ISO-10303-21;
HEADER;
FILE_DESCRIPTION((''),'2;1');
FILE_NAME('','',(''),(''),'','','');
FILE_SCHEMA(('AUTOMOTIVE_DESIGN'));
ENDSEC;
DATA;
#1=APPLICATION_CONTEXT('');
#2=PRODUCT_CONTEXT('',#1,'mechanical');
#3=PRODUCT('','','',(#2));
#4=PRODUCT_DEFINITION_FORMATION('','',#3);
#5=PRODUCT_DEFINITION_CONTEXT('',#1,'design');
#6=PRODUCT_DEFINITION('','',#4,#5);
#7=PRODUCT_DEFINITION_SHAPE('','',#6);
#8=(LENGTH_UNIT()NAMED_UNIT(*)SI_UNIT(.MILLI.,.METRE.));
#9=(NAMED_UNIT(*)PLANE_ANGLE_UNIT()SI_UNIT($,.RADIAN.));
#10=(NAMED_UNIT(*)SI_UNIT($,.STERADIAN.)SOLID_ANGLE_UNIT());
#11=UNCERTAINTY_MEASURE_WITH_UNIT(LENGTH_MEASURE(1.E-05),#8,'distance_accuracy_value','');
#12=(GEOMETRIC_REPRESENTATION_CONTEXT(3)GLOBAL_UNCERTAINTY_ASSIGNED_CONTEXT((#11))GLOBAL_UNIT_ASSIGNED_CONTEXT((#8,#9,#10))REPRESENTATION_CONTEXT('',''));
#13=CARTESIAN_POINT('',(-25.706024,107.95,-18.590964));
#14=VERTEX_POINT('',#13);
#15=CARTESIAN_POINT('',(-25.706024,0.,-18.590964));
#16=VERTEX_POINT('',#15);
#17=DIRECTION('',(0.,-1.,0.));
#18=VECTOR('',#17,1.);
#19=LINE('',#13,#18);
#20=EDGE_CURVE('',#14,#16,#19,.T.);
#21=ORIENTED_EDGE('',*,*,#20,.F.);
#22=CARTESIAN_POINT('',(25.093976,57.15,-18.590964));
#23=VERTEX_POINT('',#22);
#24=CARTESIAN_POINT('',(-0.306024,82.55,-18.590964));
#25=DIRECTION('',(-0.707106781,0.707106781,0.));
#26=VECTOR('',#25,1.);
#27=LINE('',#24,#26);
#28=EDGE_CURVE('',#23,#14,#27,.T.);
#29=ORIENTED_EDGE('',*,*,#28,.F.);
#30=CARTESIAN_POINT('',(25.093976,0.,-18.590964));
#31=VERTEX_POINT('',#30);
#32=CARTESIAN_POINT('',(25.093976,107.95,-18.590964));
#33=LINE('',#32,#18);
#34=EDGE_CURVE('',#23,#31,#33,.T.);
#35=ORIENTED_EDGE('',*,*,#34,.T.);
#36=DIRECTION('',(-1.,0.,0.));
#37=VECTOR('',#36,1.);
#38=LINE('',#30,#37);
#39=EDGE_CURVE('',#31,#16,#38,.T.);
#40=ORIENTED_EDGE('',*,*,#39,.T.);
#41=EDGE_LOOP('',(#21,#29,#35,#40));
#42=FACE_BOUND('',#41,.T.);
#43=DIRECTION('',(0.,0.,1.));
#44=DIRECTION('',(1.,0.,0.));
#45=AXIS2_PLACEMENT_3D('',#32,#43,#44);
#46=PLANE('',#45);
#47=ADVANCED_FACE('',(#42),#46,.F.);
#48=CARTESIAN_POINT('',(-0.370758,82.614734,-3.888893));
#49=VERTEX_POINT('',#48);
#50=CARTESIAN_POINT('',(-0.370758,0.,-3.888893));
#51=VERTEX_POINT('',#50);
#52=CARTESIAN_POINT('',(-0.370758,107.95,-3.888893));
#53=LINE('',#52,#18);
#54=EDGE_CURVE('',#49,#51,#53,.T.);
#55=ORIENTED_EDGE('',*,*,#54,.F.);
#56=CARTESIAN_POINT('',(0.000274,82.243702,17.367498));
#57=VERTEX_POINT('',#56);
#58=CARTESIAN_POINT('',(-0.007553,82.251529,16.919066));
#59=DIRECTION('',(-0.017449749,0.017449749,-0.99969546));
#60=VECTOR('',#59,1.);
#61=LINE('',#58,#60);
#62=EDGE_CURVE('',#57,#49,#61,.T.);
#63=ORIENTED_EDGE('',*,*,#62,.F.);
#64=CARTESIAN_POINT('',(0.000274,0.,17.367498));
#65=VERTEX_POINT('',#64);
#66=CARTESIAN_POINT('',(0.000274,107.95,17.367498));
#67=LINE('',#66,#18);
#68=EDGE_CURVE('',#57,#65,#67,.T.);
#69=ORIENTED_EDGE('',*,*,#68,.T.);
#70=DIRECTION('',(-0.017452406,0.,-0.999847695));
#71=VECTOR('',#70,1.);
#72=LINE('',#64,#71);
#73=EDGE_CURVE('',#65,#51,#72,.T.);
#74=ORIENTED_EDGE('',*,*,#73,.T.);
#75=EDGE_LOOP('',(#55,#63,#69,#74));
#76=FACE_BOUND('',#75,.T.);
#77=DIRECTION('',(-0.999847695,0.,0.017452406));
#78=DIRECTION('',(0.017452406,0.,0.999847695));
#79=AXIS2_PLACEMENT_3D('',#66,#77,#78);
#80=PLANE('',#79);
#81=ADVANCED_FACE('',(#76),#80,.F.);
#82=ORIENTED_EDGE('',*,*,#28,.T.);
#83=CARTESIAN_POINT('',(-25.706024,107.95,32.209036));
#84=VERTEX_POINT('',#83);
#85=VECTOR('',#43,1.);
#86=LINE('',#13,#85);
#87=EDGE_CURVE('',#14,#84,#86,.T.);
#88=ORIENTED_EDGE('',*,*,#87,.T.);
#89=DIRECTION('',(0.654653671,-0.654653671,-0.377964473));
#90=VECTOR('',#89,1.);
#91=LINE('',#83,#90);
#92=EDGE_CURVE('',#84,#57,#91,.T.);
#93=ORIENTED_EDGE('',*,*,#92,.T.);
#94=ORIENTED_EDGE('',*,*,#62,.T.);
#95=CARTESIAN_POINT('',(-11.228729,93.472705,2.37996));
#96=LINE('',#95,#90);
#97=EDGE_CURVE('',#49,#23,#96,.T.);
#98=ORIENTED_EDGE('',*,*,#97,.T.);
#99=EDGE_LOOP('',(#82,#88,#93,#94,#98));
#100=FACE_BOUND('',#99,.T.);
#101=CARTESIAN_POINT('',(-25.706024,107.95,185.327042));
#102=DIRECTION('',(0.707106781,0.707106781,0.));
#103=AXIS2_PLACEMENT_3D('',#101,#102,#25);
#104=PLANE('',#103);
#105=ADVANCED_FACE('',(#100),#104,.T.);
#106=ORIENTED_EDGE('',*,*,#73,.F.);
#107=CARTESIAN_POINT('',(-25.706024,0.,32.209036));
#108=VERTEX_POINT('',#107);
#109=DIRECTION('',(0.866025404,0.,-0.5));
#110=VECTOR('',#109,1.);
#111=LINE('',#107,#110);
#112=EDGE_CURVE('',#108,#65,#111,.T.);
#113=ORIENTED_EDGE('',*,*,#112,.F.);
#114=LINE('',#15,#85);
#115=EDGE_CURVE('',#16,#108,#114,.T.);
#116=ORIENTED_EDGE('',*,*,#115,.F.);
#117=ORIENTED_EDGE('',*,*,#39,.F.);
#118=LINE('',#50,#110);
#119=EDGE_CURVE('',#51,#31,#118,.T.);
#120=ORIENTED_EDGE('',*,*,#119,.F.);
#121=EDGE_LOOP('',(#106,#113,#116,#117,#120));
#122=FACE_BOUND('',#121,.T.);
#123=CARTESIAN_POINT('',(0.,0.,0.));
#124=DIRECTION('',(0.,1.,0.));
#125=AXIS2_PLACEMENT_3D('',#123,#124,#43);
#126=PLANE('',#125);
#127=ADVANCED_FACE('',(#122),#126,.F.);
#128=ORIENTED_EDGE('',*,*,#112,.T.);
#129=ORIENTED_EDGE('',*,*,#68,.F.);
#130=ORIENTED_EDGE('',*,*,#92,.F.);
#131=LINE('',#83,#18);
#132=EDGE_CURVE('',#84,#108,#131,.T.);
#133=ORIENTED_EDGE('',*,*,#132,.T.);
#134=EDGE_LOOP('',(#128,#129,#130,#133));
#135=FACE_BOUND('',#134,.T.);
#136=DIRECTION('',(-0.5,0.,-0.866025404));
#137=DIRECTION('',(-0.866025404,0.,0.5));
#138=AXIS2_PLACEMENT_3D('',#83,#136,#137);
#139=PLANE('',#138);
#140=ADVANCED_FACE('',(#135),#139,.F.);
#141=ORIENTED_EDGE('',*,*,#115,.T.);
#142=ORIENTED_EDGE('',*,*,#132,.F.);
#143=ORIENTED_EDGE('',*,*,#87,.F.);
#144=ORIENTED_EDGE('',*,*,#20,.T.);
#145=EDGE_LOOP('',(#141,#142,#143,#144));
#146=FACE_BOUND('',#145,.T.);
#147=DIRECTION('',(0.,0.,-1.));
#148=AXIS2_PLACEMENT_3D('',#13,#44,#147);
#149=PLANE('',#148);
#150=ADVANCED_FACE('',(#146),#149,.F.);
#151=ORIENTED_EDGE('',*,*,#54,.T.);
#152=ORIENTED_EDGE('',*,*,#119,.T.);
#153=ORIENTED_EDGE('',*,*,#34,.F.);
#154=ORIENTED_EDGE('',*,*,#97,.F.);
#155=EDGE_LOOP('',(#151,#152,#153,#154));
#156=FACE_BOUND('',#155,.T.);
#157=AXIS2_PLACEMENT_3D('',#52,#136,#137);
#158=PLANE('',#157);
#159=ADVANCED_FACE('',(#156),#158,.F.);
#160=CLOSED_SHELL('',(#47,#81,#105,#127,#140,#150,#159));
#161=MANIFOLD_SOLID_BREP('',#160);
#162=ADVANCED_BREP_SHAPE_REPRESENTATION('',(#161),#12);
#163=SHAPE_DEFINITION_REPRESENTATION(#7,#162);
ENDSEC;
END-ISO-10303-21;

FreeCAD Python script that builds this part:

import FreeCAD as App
import Part
import Sketcher
Q = App.Units.Quantity

doc = App.newDocument("Part")
body = doc.addObject("PartDesign::Body", "Body")

# Sketch on XZ plane
sketch1 = body.newObject("Sketcher::SketchObject", "Sketch")
sketch1.AttachmentSupport = (doc.getObject("XZ_Plane"), [""])
sketch1.MapMode = "FlatFace"
sketch1.addGeometry([
    Part.LineSegment(App.Vector(25, -19, 0), App.Vector(-26, -19, 0)),  # 0
    Part.LineSegment(App.Vector(-26, -19, 0), App.Vector(-26, 32, 0)),  # 1
    Part.LineSegment(App.Vector(-26, 32, 0), App.Vector(0, 17, 0)),  # 2
    Part.LineSegment(App.Vector(0, 17, 0), App.Vector(0, -4, 0)),  # 3
    Part.LineSegment(App.Vector(0, -4, 0), App.Vector(25, -19, 0)),  # 4
], False)
sketch1.addConstraint([
    Sketcher.Constraint("Coincident", 0, 2, 1, 1),
    Sketcher.Constraint("Coincident", 1, 2, 2, 1),
    Sketcher.Constraint("Coincident", 2, 2, 3, 1),
    Sketcher.Constraint("Coincident", 3, 2, 4, 1),
    Sketcher.Constraint("Coincident", 4, 2, 0, 1),
    Sketcher.Constraint("Horizontal", 0),
    Sketcher.Constraint("Vertical", 1),
    Sketcher.Constraint("Parallel", 2, 4),
    Sketcher.Constraint("Equal", 0, 1),
    Sketcher.Constraint("DistanceX", 0, 2, 0, 1, Q("2 in")),
    Sketcher.Constraint("Angle", 2, Q("-30 deg")),
    Sketcher.Constraint("Angle", 3, Q("-91 deg")),
    Sketcher.Constraint("DistanceX", 1, 2, 2, 2, Q("25.706298 mm")),
    Sketcher.Constraint("DistanceX", 0, 2, -1, 1, Q("25.706024 mm")),
    Sketcher.Constraint("DistanceY", 0, 2, -1, 1, Q("18.590964 mm")),
])
pad1 = body.newObject("PartDesign::Pad", "Pad")
pad1.Profile = sketch1
pad1.Length = Q("4.25 in")
pad1.Reversed = True

# Sketch on XY plane
sketch2 = body.newObject("Sketcher::SketchObject", "Sketch001")
sketch2.AttachmentSupport = (doc.getObject("XY_Plane"), [""])
sketch2.MapMode = "FlatFace"
sketch2.addGeometry([
    Part.LineSegment(App.Vector(-202, 284, 0), App.Vector(25, 57, 0)),  # 0
    Part.LineSegment(App.Vector(25, 57, 0), App.Vector(201, -119, 0)),  # 1
    Part.LineSegment(App.Vector(201, -119, 0), App.Vector(552, 233, 0)),  # 2
    Part.LineSegment(App.Vector(552, 233, 0), App.Vector(150, 635, 0)),  # 3
    Part.LineSegment(App.Vector(150, 635, 0), App.Vector(-202, 284, 0)),  # 4
], False)
sketch2.addConstraint([
    Sketcher.Constraint("Coincident", 0, 2, 1, 1),
    Sketcher.Constraint("Coincident", 1, 2, 2, 1),
    Sketcher.Constraint("Coincident", 2, 2, 3, 1),
    Sketcher.Constraint("Coincident", 3, 2, 4, 1),
    Sketcher.Constraint("Coincident", 4, 2, 0, 1),
    Sketcher.Constraint("Parallel", 0, 1),
    Sketcher.Constraint("Perpendicular", 1, 2),
    Sketcher.Constraint("Perpendicular", 2, 3),
    Sketcher.Constraint("Perpendicular", 3, 4),
    Sketcher.Constraint("Angle", 0, Q("-45 deg")),
    Sketcher.Constraint("DistanceX", 3, 2, 1, 2, Q("2 in")),
    Sketcher.Constraint("DistanceY", -1, 1, 0, 2, Q("2.25 in")),
    Sketcher.Constraint("DistanceY", 1, 2, 3, 2, Q("753.979048 mm")),
    Sketcher.Constraint("Distance", 0, Q("320.453386 mm")),
    Sketcher.Constraint("DistanceX", -1, 1, 0, 2, Q("25.093976 mm")),
])
pocket1 = body.newObject("PartDesign::Pocket", "Pocket")
pocket1.Profile = sketch2
pocket1.Type = "ThroughAll"
pocket1.Midplane = True

doc.recompute()
